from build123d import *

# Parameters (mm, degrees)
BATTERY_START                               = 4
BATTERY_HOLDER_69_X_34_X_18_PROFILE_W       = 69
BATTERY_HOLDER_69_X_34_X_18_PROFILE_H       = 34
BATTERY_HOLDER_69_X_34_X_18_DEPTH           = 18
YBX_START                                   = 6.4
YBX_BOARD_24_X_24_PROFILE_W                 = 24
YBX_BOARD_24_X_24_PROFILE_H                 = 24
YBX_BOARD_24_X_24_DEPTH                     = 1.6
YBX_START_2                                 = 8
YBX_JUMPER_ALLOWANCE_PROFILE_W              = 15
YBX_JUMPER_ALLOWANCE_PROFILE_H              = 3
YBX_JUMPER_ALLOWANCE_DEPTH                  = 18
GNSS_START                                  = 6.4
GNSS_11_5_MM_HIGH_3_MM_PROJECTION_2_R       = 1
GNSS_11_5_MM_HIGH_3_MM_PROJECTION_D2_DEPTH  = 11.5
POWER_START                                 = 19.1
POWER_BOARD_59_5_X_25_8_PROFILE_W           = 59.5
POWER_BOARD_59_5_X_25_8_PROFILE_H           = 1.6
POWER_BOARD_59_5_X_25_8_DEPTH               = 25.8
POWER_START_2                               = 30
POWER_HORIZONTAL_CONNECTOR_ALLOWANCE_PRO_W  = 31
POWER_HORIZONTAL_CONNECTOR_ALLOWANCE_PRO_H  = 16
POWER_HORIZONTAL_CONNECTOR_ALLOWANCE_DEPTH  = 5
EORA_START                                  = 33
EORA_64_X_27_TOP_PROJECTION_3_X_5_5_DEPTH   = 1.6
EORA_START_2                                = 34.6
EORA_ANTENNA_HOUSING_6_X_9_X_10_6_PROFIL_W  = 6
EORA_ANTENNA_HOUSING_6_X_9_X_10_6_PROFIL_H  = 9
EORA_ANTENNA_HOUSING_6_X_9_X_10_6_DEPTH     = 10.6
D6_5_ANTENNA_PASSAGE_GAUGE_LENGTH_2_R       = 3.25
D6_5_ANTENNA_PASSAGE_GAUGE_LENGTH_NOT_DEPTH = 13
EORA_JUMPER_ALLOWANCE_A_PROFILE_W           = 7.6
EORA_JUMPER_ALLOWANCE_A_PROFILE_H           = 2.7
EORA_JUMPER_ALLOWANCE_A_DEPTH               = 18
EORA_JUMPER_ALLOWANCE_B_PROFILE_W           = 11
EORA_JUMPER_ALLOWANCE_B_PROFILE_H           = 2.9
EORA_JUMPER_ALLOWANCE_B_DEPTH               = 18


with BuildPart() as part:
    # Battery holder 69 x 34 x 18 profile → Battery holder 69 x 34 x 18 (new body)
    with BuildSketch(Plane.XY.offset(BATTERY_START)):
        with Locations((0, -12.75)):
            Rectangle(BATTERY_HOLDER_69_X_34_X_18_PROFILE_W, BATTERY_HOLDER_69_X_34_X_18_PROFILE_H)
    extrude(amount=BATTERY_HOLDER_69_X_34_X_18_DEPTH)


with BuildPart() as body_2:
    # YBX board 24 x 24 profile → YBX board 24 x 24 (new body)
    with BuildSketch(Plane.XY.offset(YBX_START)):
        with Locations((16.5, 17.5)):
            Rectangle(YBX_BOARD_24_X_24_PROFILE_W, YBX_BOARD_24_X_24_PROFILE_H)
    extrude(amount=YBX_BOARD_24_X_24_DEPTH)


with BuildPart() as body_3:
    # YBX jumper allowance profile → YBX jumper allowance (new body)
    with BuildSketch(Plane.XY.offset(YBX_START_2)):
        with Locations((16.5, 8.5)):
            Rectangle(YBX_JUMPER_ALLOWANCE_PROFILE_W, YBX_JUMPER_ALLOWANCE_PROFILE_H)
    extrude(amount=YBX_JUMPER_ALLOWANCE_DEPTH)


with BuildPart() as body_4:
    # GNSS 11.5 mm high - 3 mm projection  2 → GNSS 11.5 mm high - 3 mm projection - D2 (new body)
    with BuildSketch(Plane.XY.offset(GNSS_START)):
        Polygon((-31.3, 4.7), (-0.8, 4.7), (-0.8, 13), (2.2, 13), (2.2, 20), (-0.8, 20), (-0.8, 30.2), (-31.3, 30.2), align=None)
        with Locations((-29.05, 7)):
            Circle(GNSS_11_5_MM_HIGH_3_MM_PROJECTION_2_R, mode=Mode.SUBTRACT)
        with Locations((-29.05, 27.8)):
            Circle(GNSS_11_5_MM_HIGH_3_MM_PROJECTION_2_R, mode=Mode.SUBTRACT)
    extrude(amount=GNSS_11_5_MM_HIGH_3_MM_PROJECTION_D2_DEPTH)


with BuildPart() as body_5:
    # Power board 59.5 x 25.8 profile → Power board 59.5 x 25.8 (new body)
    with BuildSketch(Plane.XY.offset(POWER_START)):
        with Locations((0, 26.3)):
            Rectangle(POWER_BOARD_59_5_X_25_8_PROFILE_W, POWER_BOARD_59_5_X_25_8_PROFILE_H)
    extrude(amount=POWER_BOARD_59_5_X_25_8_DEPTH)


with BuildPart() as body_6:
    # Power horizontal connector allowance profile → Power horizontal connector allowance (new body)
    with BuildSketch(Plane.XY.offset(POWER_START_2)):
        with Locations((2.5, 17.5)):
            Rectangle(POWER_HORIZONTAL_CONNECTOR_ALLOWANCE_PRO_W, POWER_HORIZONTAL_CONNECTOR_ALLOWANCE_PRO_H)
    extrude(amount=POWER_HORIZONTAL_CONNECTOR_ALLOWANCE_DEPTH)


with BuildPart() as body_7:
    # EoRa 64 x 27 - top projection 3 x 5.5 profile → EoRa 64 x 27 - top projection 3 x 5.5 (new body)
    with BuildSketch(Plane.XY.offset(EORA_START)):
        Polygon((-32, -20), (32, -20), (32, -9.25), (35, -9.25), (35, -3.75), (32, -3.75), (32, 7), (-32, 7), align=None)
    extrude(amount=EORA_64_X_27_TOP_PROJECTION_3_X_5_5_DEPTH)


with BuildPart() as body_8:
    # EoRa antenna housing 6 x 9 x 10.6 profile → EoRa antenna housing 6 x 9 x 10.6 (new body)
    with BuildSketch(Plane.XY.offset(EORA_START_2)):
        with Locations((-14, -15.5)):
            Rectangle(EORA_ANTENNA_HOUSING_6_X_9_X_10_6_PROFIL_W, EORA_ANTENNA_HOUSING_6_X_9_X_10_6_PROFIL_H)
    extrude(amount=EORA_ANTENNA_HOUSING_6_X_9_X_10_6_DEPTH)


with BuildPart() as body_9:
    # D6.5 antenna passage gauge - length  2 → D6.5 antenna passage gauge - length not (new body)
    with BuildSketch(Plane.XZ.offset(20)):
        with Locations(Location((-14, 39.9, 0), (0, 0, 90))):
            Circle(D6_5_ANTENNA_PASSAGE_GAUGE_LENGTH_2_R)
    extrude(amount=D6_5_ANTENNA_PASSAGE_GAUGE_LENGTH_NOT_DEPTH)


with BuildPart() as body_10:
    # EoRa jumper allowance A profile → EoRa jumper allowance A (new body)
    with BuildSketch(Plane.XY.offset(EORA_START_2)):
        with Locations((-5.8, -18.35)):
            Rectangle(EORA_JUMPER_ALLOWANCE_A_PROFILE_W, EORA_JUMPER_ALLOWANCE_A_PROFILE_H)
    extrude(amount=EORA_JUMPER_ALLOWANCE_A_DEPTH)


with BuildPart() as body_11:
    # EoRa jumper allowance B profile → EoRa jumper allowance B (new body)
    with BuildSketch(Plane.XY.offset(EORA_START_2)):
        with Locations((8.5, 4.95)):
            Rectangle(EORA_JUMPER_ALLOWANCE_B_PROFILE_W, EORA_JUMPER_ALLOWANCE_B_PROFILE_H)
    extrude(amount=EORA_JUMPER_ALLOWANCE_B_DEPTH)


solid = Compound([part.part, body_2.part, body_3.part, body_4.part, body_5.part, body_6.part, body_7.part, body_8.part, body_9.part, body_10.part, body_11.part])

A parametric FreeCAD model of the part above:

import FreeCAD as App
import Part
import Sketcher

V = App.Vector
Q = App.Units.Quantity

doc = App.newDocument("Part")
params = doc.addObject("Spreadsheet::Sheet", "Params")
for row, (alias, value) in enumerate([
    ("sketch1_width", "69 mm"),
    ("sketch1_height", "34 mm"),
    ("pad1_length", "18 mm"),
    ("sketch2_width", "24 mm"),
    ("pad2_length", "1.6 mm"),
    ("sketch3_width", "15 mm"),
    ("sketch3_height", "3 mm"),
    ("pad3_length", "18 mm"),
    ("sketch4_diameter", "2 mm"),
    ("sketch4_width", "3 mm"),
    ("sketch4_height", "7 mm"),
    ("sketch4_width2", "30.5 mm"),
    ("sketch4_height2", "8.3 mm"),
    ("pad4_length", "11.5 mm"),
    ("sketch5_width", "59.5 mm"),
    ("sketch5_height", "1.6 mm"),
    ("pad5_length", "25.8 mm"),
    ("sketch6_width", "31 mm"),
    ("sketch6_height", "16 mm"),
    ("pad6_length", "5 mm"),
    ("sketch7_width", "64 mm"),
    ("sketch7_width2", "3 mm"),
    ("sketch7_height", "27 mm"),
    ("sketch7_height2", "5.5 mm"),
    ("pad7_length", "1.6 mm"),
    ("sketch8_width", "6 mm"),
    ("sketch8_height", "9 mm"),
    ("pad8_length", "10.6 mm"),
    ("sketch9_diameter", "6.5 mm"),
    ("pad9_length", "13 mm"),
    ("sketch10_width", "7.6 mm"),
    ("sketch10_height", "2.7 mm"),
    ("pad10_length", "18 mm"),
    ("sketch11_width", "11 mm"),
    ("sketch11_height", "2.9 mm"),
    ("pad11_length", "18 mm"),
], start=1):
    params.set(f"A{row}", alias)
    params.set(f"B{row}", "=" + value)
    params.setAlias(f"B{row}", alias)

body = doc.addObject("PartDesign::Body", "Body")

# Sketch on XY plane
sketch1 = doc.addObject("Sketcher::SketchObject", "Sketch")
body.addObject(sketch1)
sketch1.AttachmentSupport = (doc.XY_Plane, [""])
sketch1.MapMode = "FlatFace"
sketch1.AttachmentOffset = App.Placement(V(0, 0, 4), App.Rotation())
sketch1.addGeometry([
    Part.LineSegment(V(-34.5, 4.25, 0), V(-34.5, -29.75, 0)),
    Part.LineSegment(V(-34.5, -29.75, 0), V(34.5, -29.75, 0)),
    Part.LineSegment(V(34.5, -29.75, 0), V(34.5, 4.25, 0)),
    Part.LineSegment(V(34.5, 4.25, 0), V(-34.5, 4.25, 0)),
], False)
sketch1.addConstraint([
    Sketcher.Constraint("Coincident", 0, 2, 1, 1),
    Sketcher.Constraint("Coincident", 1, 2, 2, 1),
    Sketcher.Constraint("Coincident", 2, 2, 3, 1),
    Sketcher.Constraint("Coincident", 3, 2, 0, 1),
    Sketcher.Constraint("Vertical", 0),
    Sketcher.Constraint("Horizontal", 1),
    Sketcher.Constraint("Vertical", 2),
    Sketcher.Constraint("Horizontal", 3),
    Sketcher.Constraint("DistanceX", 1, 1, 1, 2, Q("69 mm")),
    Sketcher.Constraint("DistanceY", 0, 2, 0, 1, Q("34 mm")),
    Sketcher.Constraint("DistanceX", 0, 2, -1, 1, Q("34.5 mm")),
    Sketcher.Constraint("DistanceY", 0, 2, -1, 1, Q("29.75 mm")),
])
sketch1.setExpression("Constraints[8]", "Params.sketch1_width")
sketch1.setExpression("Constraints[9]", "Params.sketch1_height")
pad1 = doc.addObject("PartDesign::Pad", "Pad")
body.addObject(pad1)
pad1.Profile = sketch1
pad1.setExpression("Length", "Params.pad1_length")
body2 = doc.addObject("PartDesign::Body", "Body001")

# Sketch on XY plane
sketch2 = doc.addObject("Sketcher::SketchObject", "Sketch001")
body2.addObject(sketch2)
sketch2.AttachmentSupport = (doc.getObject("XY_Plane001"), [""])
sketch2.MapMode = "FlatFace"
sketch2.AttachmentOffset = App.Placement(V(0, 0, 6.4), App.Rotation())
sketch2.addGeometry([
    Part.LineSegment(V(4.5, 29.5, 0), V(4.5, 5.5, 0)),
    Part.LineSegment(V(4.5, 5.5, 0), V(28.5, 5.5, 0)),
    Part.LineSegment(V(28.5, 5.5, 0), V(28.5, 29.5, 0)),
    Part.LineSegment(V(28.5, 29.5, 0), V(4.5, 29.5, 0)),
], False)
sketch2.addConstraint([
    Sketcher.Constraint("Coincident", 0, 2, 1, 1),
    Sketcher.Constraint("Coincident", 1, 2, 2, 1),
    Sketcher.Constraint("Coincident", 2, 2, 3, 1),
    Sketcher.Constraint("Coincident", 3, 2, 0, 1),
    Sketcher.Constraint("Vertical", 0),
    Sketcher.Constraint("Horizontal", 1),
    Sketcher.Constraint("Vertical", 2),
    Sketcher.Constraint("Horizontal", 3),
    Sketcher.Constraint("Equal", 3, 0),
    Sketcher.Constraint("DistanceX", 1, 1, 1, 2, Q("24 mm")),
    Sketcher.Constraint("DistanceX", -1, 1, 0, 2, Q("4.5 mm")),
    Sketcher.Constraint("DistanceY", -1, 1, 0, 2, Q("5.5 mm")),
])
sketch2.setExpression("Constraints[9]", "Params.sketch2_width")
pad2 = doc.addObject("PartDesign::Pad", "Pad001")
body2.addObject(pad2)
pad2.Profile = sketch2
pad2.setExpression("Length", "Params.pad2_length")
body3 = doc.addObject("PartDesign::Body", "Body002")

# Sketch on XY plane
sketch3 = doc.addObject("Sketcher::SketchObject", "Sketch002")
body3.addObject(sketch3)
sketch3.AttachmentSupport = (doc.getObject("XY_Plane002"), [""])
sketch3.MapMode = "FlatFace"
sketch3.AttachmentOffset = App.Placement(V(0, 0, 8), App.Rotation())
sketch3.addGeometry([
    Part.LineSegment(V(9, 10, 0), V(9, 7, 0)),
    Part.LineSegment(V(9, 7, 0), V(24, 7, 0)),
    Part.LineSegment(V(24, 7, 0), V(24, 10, 0)),
    Part.LineSegment(V(24, 10, 0), V(9, 10, 0)),
], False)
sketch3.addConstraint([
    Sketcher.Constraint("Coincident", 0, 2, 1, 1),
    Sketcher.Constraint("Coincident", 1, 2, 2, 1),
    Sketcher.Constraint("Coincident", 2, 2, 3, 1),
    Sketcher.Constraint("Coincident", 3, 2, 0, 1),
    Sketcher.Constraint("Vertical", 0),
    Sketcher.Constraint("Horizontal", 1),
    Sketcher.Constraint("Vertical", 2),
    Sketcher.Constraint("Horizontal", 3),
    Sketcher.Constraint("DistanceX", 1, 1, 1, 2, Q("15 mm")),
    Sketcher.Constraint("DistanceY", 0, 2, 0, 1, Q("3 mm")),
    Sketcher.Constraint("DistanceX", -1, 1, 0, 2, Q("9 mm")),
    Sketcher.Constraint("DistanceY", -1, 1, 0, 2, Q("7 mm")),
])
sketch3.setExpression("Constraints[8]", "Params.sketch3_width")
sketch3.setExpression("Constraints[9]", "Params.sketch3_height")
pad3 = doc.addObject("PartDesign::Pad", "Pad002")
body3.addObject(pad3)
pad3.Profile = sketch3
pad3.setExpression("Length", "Params.pad3_length")
body4 = doc.addObject("PartDesign::Body", "Body003")

# Sketch on XY plane
sketch4 = doc.addObject("Sketcher::SketchObject", "Sketch003")
body4.addObject(sketch4)
sketch4.AttachmentSupport = (doc.getObject("XY_Plane003"), [""])
sketch4.MapMode = "FlatFace"
sketch4.AttachmentOffset = App.Placement(V(0, 0, 6.4), App.Rotation())
sketch4.addGeometry([
    Part.LineSegment(V(-31.3, 4.7, 0), V(-0.8, 4.7, 0)),  # 0
    Part.LineSegment(V(-0.8, 4.7, 0), V(-0.8, 13, 0)),  # 1
    Part.LineSegment(V(-0.8, 13, 0), V(2.2, 13, 0)),  # 2
    Part.LineSegment(V(2.2, 13, 0), V(2.2, 20, 0)),  # 3
    Part.LineSegment(V(2.2, 20, 0), V(-0.8, 20, 0)),  # 4
    Part.LineSegment(V(-0.8, 20, 0), V(-0.8, 30.2, 0)),  # 5
    Part.LineSegment(V(-0.8, 30.2, 0), V(-31.3, 30.2, 0)),  # 6
    Part.LineSegment(V(-31.3, 30.2, 0), V(-31.3, 4.7, 0)),  # 7
    Part.Circle(V(-29.05, 7, 0), V(0, 0, 1), 1),  # 8
    Part.Circle(V(-29.05, 27.8, 0), V(0, 0, 1), 1),  # 9
], False)
sketch4.addConstraint([
    Sketcher.Constraint("Coincident", 0, 2, 1, 1),
    Sketcher.Constraint("Coincident", 1, 2, 2, 1),
    Sketcher.Constraint("Coincident", 2, 2, 3, 1),
    Sketcher.Constraint("Coincident", 3, 2, 4, 1),
    Sketcher.Constraint("Coincident", 4, 2, 5, 1),
    Sketcher.Constraint("Coincident", 5, 2, 6, 1),
    Sketcher.Constraint("Coincident", 6, 2, 7, 1),
    Sketcher.Constraint("Coincident", 7, 2, 0, 1),
    Sketcher.Constraint("Horizontal", 0),
    Sketcher.Constraint("Vertical", 1),
    Sketcher.Constraint("Horizontal", 2),
    Sketcher.Constraint("Vertical", 3),
    Sketcher.Constraint("Horizontal", 4),
    Sketcher.Constraint("Vertical", 5),
    Sketcher.Constraint("Horizontal", 6),
    Sketcher.Constraint("Vertical", 7),
    Sketcher.Constraint("Equal", 8, 9),
    Sketcher.Constraint("Vertical", 8, 3, 9, 3),
    Sketcher.Constraint("Vertical", 1, 2, 4, 2),
    Sketcher.Constraint("Diameter", 8, Q("2 mm")),
    Sketcher.Constraint("DistanceX", 2, 1, 2, 2, Q("3 mm")),
    Sketcher.Constraint("DistanceY", 3, 1, 3, 2, Q("7 mm")),
    Sketcher.Constraint("DistanceX", 0, 1, 0, 2, Q("30.5 mm")),
    Sketcher.Constraint("DistanceY", 1, 1, 1, 2, Q("8.3 mm")),
    Sketcher.Constraint("DistanceY", 5, 1, 5, 2, Q("10.2 mm")),
    Sketcher.Constraint("DistanceY", -1, 1, 8, 3, Q("7 mm")),
    Sketcher.Constraint("DistanceY", -1, 1, 1, 2, Q("13 mm")),
    Sketcher.Constraint("DistanceY", -1, 1, 9, 3, Q("27.8 mm")),
    Sketcher.Constraint("DistanceX", 0, 2, -1, 1, Q("0.8 mm")),
    Sketcher.Constraint("DistanceX", 8, 3, -1, 1, Q("29.05 mm")),
])
sketch4.setExpression("Constraints[19]", "Params.sketch4_diameter")
sketch4.setExpression("Constraints[20]", "Params.sketch4_width")
sketch4.setExpression("Constraints[21]", "Params.sketch4_height")
sketch4.setExpression("Constraints[22]", "Params.sketch4_width2")
sketch4.setExpression("Constraints[23]", "Params.sketch4_height2")
pad4 = doc.addObject("PartDesign::Pad", "Pad003")
body4.addObject(pad4)
pad4.Profile = sketch4
pad4.setExpression("Length", "Params.pad4_length")
body5 = doc.addObject("PartDesign::Body", "Body004")

# Sketch on XY plane
sketch5 = doc.addObject("Sketcher::SketchObject", "Sketch004")
body5.addObject(sketch5)
sketch5.AttachmentSupport = (doc.getObject("XY_Plane004"), [""])
sketch5.MapMode = "FlatFace"
sketch5.AttachmentOffset = App.Placement(V(0, 0, 19.1), App.Rotation())
sketch5.addGeometry([
    Part.LineSegment(V(-29.75, 27.1, 0), V(-29.75, 25.5, 0)),
    Part.LineSegment(V(-29.75, 25.5, 0), V(29.75, 25.5, 0)),
    Part.LineSegment(V(29.75, 25.5, 0), V(29.75, 27.1, 0)),
    Part.LineSegment(V(29.75, 27.1, 0), V(-29.75, 27.1, 0)),
], False)
sketch5.addConstraint([
    Sketcher.Constraint("Coincident", 0, 2, 1, 1),
    Sketcher.Constraint("Coincident", 1, 2, 2, 1),
    Sketcher.Constraint("Coincident", 2, 2, 3, 1),
    Sketcher.Constraint("Coincident", 3, 2, 0, 1),
    Sketcher.Constraint("Vertical", 0),
    Sketcher.Constraint("Horizontal", 1),
    Sketcher.Constraint("Vertical", 2),
    Sketcher.Constraint("Horizontal", 3),
    Sketcher.Constraint("DistanceX", 1, 1, 1, 2, Q("59.5 mm")),
    Sketcher.Constraint("DistanceY", 0, 2, 0, 1, Q("1.6 mm")),
    Sketcher.Constraint("DistanceY", -1, 1, 0, 2, Q("25.5 mm")),
    Sketcher.Constraint("DistanceX", 0, 2, -1, 1, Q("29.75 mm")),
])
sketch5.setExpression("Constraints[8]", "Params.sketch5_width")
sketch5.setExpression("Constraints[9]", "Params.sketch5_height")
pad5 = doc.addObject("PartDesign::Pad", "Pad004")
body5.addObject(pad5)
pad5.Profile = sketch5
pad5.setExpression("Length", "Params.pad5_length")
body6 = doc.addObject("PartDesign::Body", "Body005")

# Sketch on XY plane
sketch6 = doc.addObject("Sketcher::SketchObject", "Sketch005")
body6.addObject(sketch6)
sketch6.AttachmentSupport = (doc.getObject("XY_Plane005"), [""])
sketch6.MapMode = "FlatFace"
sketch6.AttachmentOffset = App.Placement(V(0, 0, 30), App.Rotation())
sketch6.addGeometry([
    Part.LineSegment(V(-13, 25.5, 0), V(-13, 9.5, 0)),
    Part.LineSegment(V(-13, 9.5, 0), V(18, 9.5, 0)),
    Part.LineSegment(V(18, 9.5, 0), V(18, 25.5, 0)),
    Part.LineSegment(V(18, 25.5, 0), V(-13, 25.5, 0)),
], False)
sketch6.addConstraint([
    Sketcher.Constraint("Coincident", 0, 2, 1, 1),
    Sketcher.Constraint("Coincident", 1, 2, 2, 1),
    Sketcher.Constraint("Coincident", 2, 2, 3, 1),
    Sketcher.Constraint("Coincident", 3, 2, 0, 1),
    Sketcher.Constraint("Vertical", 0),
    Sketcher.Constraint("Horizontal", 1),
    Sketcher.Constraint("Vertical", 2),
    Sketcher.Constraint("Horizontal", 3),
    Sketcher.Constraint("DistanceX", 1, 1, 1, 2, Q("31 mm")),
    Sketcher.Constraint("DistanceY", 0, 2, 0, 1, Q("16 mm")),
    Sketcher.Constraint("DistanceX", 0, 2, -1, 1, Q("13 mm")),
    Sketcher.Constraint("DistanceY", -1, 1, 0, 2, Q("9.5 mm")),
])
sketch6.setExpression("Constraints[8]", "Params.sketch6_width")
sketch6.setExpression("Constraints[9]", "Params.sketch6_height")
pad6 = doc.addObject("PartDesign::Pad", "Pad005")
body6.addObject(pad6)
pad6.Profile = sketch6
pad6.setExpression("Length", "Params.pad6_length")
body7 = doc.addObject("PartDesign::Body", "Body006")

# Sketch on XY plane
sketch7 = doc.addObject("Sketcher::SketchObject", "Sketch006")
body7.addObject(sketch7)
sketch7.AttachmentSupport = (doc.getObject("XY_Plane006"), [""])
sketch7.MapMode = "FlatFace"
sketch7.AttachmentOffset = App.Placement(V(0, 0, 33), App.Rotation())
sketch7.addGeometry([
    Part.LineSegment(V(-32, -20, 0), V(32, -20, 0)),  # 0
    Part.LineSegment(V(32, -20, 0), V(32, -9.25, 0)),  # 1
    Part.LineSegment(V(32, -9.25, 0), V(35, -9.25, 0)),  # 2
    Part.LineSegment(V(35, -9.25, 0), V(35, -3.75, 0)),  # 3
    Part.LineSegment(V(35, -3.75, 0), V(32, -3.75, 0)),  # 4
    Part.LineSegment(V(32, -3.75, 0), V(32, 7, 0)),  # 5
    Part.LineSegment(V(32, 7, 0), V(-32, 7, 0)),  # 6
    Part.LineSegment(V(-32, 7, 0), V(-32, -20, 0)),  # 7
], False)
sketch7.addConstraint([
    Sketcher.Constraint("Coincident", 0, 2, 1, 1),
    Sketcher.Constraint("Coincident", 1, 2, 2, 1),
    Sketcher.Constraint("Coincident", 2, 2, 3, 1),
    Sketcher.Constraint("Coincident", 3, 2, 4, 1),
    Sketcher.Constraint("Coincident", 4, 2, 5, 1),
    Sketcher.Constraint("Coincident", 5, 2, 6, 1),
    Sketcher.Constraint("Coincident", 6, 2, 7, 1),
    Sketcher.Constraint("Coincident", 7, 2, 0, 1),
    Sketcher.Constraint("Horizontal", 0),
    Sketcher.Constraint("Vertical", 1),
    Sketcher.Constraint("Horizontal", 2),
    Sketcher.Constraint("Vertical", 3),
    Sketcher.Constraint("Horizontal", 4),
    Sketcher.Constraint("Vertical", 5),
    Sketcher.Constraint("Horizontal", 6),
    Sketcher.Constraint("Vertical", 7),
    Sketcher.Constraint("Vertical", 1, 2, 4, 2),
    Sketcher.Constraint("Equal", 1, 5),
    Sketcher.Constraint("DistanceX", 0, 1, 0, 2, Q("64 mm")),
    Sketcher.Constraint("DistanceX", 2, 1, 2, 2, Q("3 mm")),
    Sketcher.Constraint("DistanceY", 7, 2, 7, 1, Q("27 mm")),
    Sketcher.Constraint("DistanceY", 3, 1, 3, 2, Q("5.5 mm")),
    Sketcher.Constraint("DistanceX", -1, 1, 0, 2, Q("32 mm")),
    Sketcher.Constraint("DistanceY", 0, 2, -1, 1, Q("20 mm")),
])
sketch7.setExpression("Constraints[18]", "Params.sketch7_width")
sketch7.setExpression("Constraints[19]", "Params.sketch7_width2")
sketch7.setExpression("Constraints[20]", "Params.sketch7_height")
sketch7.setExpression("Constraints[21]", "Params.sketch7_height2")
pad7 = doc.addObject("PartDesign::Pad", "Pad006")
body7.addObject(pad7)
pad7.Profile = sketch7
pad7.setExpression("Length", "Params.pad7_length")
body8 = doc.addObject("PartDesign::Body", "Body007")

# Sketch on XY plane
sketch8 = doc.addObject("Sketcher::SketchObject", "Sketch007")
body8.addObject(sketch8)
sketch8.AttachmentSupport = (doc.getObject("XY_Plane007"), [""])
sketch8.MapMode = "FlatFace"
sketch8.AttachmentOffset = App.Placement(V(0, 0, 34.6), App.Rotation())
sketch8.addGeometry([
    Part.LineSegment(V(-17, -11, 0), V(-17, -20, 0)),
    Part.LineSegment(V(-17, -20, 0), V(-11, -20, 0)),
    Part.LineSegment(V(-11, -20, 0), V(-11, -11, 0)),
    Part.LineSegment(V(-11, -11, 0), V(-17, -11, 0)),
], False)
sketch8.addConstraint([
    Sketcher.Constraint("Coincident", 0, 2, 1, 1),
    Sketcher.Constraint("Coincident", 1, 2, 2, 1),
    Sketcher.Constraint("Coincident", 2, 2, 3, 1),
    Sketcher.Constraint("Coincident", 3, 2, 0, 1),
    Sketcher.Constraint("Vertical", 0),
    Sketcher.Constraint("Horizontal", 1),
    Sketcher.Constraint("Vertical", 2),
    Sketcher.Constraint("Horizontal", 3),
    Sketcher.Constraint("DistanceX", 1, 1, 1, 2, Q("6 mm")),
    Sketcher.Constraint("DistanceY", 0, 2, 0, 1, Q("9 mm")),
    Sketcher.Constraint("DistanceX", 0, 2, -1, 1, Q("17 mm")),
    Sketcher.Constraint("DistanceY", 0, 2, -1, 1, Q("20 mm")),
])
sketch8.setExpression("Constraints[8]", "Params.sketch8_width")
sketch8.setExpression("Constraints[9]", "Params.sketch8_height")
pad8 = doc.addObject("PartDesign::Pad", "Pad007")
body8.addObject(pad8)
pad8.Profile = sketch8
pad8.setExpression("Length", "Params.pad8_length")
body9 = doc.addObject("PartDesign::Body", "Body008")

# Sketch on XZ plane
sketch9 = doc.addObject("Sketcher::SketchObject", "Sketch008")
body9.addObject(sketch9)
sketch9.AttachmentSupport = (doc.getObject("XZ_Plane008"), [""])
sketch9.MapMode = "FlatFace"
sketch9.AttachmentOffset = App.Placement(V(0, 0, 20), App.Rotation())
sketch9.addGeometry(Part.Circle(V(-14, 39.9, 0), V(0, 0, 1), 3.25), False)
sketch9.addConstraint([
    Sketcher.Constraint("Diameter", 0, Q("6.5 mm")),
    Sketcher.Constraint("DistanceX", 0, 3, -1, 1, Q("14 mm")),
    Sketcher.Constraint("DistanceY", -1, 1, 0, 3, Q("39.9 mm")),
])
sketch9.setExpression("Constraints[0]", "Params.sketch9_diameter")
pad9 = doc.addObject("PartDesign::Pad", "Pad008")
body9.addObject(pad9)
pad9.Profile = sketch9
pad9.setExpression("Length", "Params.pad9_length")
body10 = doc.addObject("PartDesign::Body", "Body009")

# Sketch on XY plane
sketch10 = doc.addObject("Sketcher::SketchObject", "Sketch009")
body10.addObject(sketch10)
sketch10.AttachmentSupport = (doc.getObject("XY_Plane009"), [""])
sketch10.MapMode = "FlatFace"
sketch10.AttachmentOffset = App.Placement(V(0, 0, 34.6), App.Rotation())
sketch10.addGeometry([
    Part.LineSegment(V(-9.6, -17, 0), V(-9.6, -19.7, 0)),
    Part.LineSegment(V(-9.6, -19.7, 0), V(-2, -19.7, 0)),
    Part.LineSegment(V(-2, -19.7, 0), V(-2, -17, 0)),
    Part.LineSegment(V(-2, -17, 0), V(-9.6, -17, 0)),
], False)
sketch10.addConstraint([
    Sketcher.Constraint("Coincident", 0, 2, 1, 1),
    Sketcher.Constraint("Coincident", 1, 2, 2, 1),
    Sketcher.Constraint("Coincident", 2, 2, 3, 1),
    Sketcher.Constraint("Coincident", 3, 2, 0, 1),
    Sketcher.Constraint("Vertical", 0),
    Sketcher.Constraint("Horizontal", 1),
    Sketcher.Constraint("Vertical", 2),
    Sketcher.Constraint("Horizontal", 3),
    Sketcher.Constraint("DistanceX", 1, 1, 1, 2, Q("7.6 mm")),
    Sketcher.Constraint("DistanceY", 0, 2, 0, 1, Q("2.7 mm")),
    Sketcher.Constraint("DistanceX", 1, 2, -1, 1, Q("2 mm")),
    Sketcher.Constraint("DistanceY", 2, 2, -1, 1, Q("17 mm")),
])
sketch10.setExpression("Constraints[8]", "Params.sketch10_width")
sketch10.setExpression("Constraints[9]", "Params.sketch10_height")
pad10 = doc.addObject("PartDesign::Pad", "Pad009")
body10.addObject(pad10)
pad10.Profile = sketch10
pad10.setExpression("Length", "Params.pad10_length")
body11 = doc.addObject("PartDesign::Body", "Body010")

# Sketch on XY plane
sketch11 = doc.addObject("Sketcher::SketchObject", "Sketch010")
body11.addObject(sketch11)
sketch11.AttachmentSupport = (doc.getObject("XY_Plane010"), [""])
sketch11.MapMode = "FlatFace"
sketch11.AttachmentOffset = App.Placement(V(0, 0, 34.6), App.Rotation())
sketch11.addGeometry([
    Part.LineSegment(V(3, 6.4, 0), V(3, 3.5, 0)),
    Part.LineSegment(V(3, 3.5, 0), V(14, 3.5, 0)),
    Part.LineSegment(V(14, 3.5, 0), V(14, 6.4, 0)),
    Part.LineSegment(V(14, 6.4, 0), V(3, 6.4, 0)),
], False)
sketch11.addConstraint([
    Sketcher.Constraint("Coincident", 0, 2, 1, 1),
    Sketcher.Constraint("Coincident", 1, 2, 2, 1),
    Sketcher.Constraint("Coincident", 2, 2, 3, 1),
    Sketcher.Constraint("Coincident", 3, 2, 0, 1),
    Sketcher.Constraint("Vertical", 0),
    Sketcher.Constraint("Horizontal", 1),
    Sketcher.Constraint("Vertical", 2),
    Sketcher.Constraint("Horizontal", 3),
    Sketcher.Constraint("DistanceX", 1, 1, 1, 2, Q("11 mm")),
    Sketcher.Constraint("DistanceY", 0, 2, 0, 1, Q("2.9 mm")),
    Sketcher.Constraint("DistanceX", -1, 1, 0, 2, Q("3 mm")),
    Sketcher.Constraint("DistanceY", -1, 1, 0, 2, Q("3.5 mm")),
])
sketch11.setExpression("Constraints[8]", "Params.sketch11_width")
sketch11.setExpression("Constraints[9]", "Params.sketch11_height")
pad11 = doc.addObject("PartDesign::Pad", "Pad010")
body11.addObject(pad11)
pad11.Profile = sketch11
pad11.setExpression("Length", "Params.pad11_length")

doc.recompute()
